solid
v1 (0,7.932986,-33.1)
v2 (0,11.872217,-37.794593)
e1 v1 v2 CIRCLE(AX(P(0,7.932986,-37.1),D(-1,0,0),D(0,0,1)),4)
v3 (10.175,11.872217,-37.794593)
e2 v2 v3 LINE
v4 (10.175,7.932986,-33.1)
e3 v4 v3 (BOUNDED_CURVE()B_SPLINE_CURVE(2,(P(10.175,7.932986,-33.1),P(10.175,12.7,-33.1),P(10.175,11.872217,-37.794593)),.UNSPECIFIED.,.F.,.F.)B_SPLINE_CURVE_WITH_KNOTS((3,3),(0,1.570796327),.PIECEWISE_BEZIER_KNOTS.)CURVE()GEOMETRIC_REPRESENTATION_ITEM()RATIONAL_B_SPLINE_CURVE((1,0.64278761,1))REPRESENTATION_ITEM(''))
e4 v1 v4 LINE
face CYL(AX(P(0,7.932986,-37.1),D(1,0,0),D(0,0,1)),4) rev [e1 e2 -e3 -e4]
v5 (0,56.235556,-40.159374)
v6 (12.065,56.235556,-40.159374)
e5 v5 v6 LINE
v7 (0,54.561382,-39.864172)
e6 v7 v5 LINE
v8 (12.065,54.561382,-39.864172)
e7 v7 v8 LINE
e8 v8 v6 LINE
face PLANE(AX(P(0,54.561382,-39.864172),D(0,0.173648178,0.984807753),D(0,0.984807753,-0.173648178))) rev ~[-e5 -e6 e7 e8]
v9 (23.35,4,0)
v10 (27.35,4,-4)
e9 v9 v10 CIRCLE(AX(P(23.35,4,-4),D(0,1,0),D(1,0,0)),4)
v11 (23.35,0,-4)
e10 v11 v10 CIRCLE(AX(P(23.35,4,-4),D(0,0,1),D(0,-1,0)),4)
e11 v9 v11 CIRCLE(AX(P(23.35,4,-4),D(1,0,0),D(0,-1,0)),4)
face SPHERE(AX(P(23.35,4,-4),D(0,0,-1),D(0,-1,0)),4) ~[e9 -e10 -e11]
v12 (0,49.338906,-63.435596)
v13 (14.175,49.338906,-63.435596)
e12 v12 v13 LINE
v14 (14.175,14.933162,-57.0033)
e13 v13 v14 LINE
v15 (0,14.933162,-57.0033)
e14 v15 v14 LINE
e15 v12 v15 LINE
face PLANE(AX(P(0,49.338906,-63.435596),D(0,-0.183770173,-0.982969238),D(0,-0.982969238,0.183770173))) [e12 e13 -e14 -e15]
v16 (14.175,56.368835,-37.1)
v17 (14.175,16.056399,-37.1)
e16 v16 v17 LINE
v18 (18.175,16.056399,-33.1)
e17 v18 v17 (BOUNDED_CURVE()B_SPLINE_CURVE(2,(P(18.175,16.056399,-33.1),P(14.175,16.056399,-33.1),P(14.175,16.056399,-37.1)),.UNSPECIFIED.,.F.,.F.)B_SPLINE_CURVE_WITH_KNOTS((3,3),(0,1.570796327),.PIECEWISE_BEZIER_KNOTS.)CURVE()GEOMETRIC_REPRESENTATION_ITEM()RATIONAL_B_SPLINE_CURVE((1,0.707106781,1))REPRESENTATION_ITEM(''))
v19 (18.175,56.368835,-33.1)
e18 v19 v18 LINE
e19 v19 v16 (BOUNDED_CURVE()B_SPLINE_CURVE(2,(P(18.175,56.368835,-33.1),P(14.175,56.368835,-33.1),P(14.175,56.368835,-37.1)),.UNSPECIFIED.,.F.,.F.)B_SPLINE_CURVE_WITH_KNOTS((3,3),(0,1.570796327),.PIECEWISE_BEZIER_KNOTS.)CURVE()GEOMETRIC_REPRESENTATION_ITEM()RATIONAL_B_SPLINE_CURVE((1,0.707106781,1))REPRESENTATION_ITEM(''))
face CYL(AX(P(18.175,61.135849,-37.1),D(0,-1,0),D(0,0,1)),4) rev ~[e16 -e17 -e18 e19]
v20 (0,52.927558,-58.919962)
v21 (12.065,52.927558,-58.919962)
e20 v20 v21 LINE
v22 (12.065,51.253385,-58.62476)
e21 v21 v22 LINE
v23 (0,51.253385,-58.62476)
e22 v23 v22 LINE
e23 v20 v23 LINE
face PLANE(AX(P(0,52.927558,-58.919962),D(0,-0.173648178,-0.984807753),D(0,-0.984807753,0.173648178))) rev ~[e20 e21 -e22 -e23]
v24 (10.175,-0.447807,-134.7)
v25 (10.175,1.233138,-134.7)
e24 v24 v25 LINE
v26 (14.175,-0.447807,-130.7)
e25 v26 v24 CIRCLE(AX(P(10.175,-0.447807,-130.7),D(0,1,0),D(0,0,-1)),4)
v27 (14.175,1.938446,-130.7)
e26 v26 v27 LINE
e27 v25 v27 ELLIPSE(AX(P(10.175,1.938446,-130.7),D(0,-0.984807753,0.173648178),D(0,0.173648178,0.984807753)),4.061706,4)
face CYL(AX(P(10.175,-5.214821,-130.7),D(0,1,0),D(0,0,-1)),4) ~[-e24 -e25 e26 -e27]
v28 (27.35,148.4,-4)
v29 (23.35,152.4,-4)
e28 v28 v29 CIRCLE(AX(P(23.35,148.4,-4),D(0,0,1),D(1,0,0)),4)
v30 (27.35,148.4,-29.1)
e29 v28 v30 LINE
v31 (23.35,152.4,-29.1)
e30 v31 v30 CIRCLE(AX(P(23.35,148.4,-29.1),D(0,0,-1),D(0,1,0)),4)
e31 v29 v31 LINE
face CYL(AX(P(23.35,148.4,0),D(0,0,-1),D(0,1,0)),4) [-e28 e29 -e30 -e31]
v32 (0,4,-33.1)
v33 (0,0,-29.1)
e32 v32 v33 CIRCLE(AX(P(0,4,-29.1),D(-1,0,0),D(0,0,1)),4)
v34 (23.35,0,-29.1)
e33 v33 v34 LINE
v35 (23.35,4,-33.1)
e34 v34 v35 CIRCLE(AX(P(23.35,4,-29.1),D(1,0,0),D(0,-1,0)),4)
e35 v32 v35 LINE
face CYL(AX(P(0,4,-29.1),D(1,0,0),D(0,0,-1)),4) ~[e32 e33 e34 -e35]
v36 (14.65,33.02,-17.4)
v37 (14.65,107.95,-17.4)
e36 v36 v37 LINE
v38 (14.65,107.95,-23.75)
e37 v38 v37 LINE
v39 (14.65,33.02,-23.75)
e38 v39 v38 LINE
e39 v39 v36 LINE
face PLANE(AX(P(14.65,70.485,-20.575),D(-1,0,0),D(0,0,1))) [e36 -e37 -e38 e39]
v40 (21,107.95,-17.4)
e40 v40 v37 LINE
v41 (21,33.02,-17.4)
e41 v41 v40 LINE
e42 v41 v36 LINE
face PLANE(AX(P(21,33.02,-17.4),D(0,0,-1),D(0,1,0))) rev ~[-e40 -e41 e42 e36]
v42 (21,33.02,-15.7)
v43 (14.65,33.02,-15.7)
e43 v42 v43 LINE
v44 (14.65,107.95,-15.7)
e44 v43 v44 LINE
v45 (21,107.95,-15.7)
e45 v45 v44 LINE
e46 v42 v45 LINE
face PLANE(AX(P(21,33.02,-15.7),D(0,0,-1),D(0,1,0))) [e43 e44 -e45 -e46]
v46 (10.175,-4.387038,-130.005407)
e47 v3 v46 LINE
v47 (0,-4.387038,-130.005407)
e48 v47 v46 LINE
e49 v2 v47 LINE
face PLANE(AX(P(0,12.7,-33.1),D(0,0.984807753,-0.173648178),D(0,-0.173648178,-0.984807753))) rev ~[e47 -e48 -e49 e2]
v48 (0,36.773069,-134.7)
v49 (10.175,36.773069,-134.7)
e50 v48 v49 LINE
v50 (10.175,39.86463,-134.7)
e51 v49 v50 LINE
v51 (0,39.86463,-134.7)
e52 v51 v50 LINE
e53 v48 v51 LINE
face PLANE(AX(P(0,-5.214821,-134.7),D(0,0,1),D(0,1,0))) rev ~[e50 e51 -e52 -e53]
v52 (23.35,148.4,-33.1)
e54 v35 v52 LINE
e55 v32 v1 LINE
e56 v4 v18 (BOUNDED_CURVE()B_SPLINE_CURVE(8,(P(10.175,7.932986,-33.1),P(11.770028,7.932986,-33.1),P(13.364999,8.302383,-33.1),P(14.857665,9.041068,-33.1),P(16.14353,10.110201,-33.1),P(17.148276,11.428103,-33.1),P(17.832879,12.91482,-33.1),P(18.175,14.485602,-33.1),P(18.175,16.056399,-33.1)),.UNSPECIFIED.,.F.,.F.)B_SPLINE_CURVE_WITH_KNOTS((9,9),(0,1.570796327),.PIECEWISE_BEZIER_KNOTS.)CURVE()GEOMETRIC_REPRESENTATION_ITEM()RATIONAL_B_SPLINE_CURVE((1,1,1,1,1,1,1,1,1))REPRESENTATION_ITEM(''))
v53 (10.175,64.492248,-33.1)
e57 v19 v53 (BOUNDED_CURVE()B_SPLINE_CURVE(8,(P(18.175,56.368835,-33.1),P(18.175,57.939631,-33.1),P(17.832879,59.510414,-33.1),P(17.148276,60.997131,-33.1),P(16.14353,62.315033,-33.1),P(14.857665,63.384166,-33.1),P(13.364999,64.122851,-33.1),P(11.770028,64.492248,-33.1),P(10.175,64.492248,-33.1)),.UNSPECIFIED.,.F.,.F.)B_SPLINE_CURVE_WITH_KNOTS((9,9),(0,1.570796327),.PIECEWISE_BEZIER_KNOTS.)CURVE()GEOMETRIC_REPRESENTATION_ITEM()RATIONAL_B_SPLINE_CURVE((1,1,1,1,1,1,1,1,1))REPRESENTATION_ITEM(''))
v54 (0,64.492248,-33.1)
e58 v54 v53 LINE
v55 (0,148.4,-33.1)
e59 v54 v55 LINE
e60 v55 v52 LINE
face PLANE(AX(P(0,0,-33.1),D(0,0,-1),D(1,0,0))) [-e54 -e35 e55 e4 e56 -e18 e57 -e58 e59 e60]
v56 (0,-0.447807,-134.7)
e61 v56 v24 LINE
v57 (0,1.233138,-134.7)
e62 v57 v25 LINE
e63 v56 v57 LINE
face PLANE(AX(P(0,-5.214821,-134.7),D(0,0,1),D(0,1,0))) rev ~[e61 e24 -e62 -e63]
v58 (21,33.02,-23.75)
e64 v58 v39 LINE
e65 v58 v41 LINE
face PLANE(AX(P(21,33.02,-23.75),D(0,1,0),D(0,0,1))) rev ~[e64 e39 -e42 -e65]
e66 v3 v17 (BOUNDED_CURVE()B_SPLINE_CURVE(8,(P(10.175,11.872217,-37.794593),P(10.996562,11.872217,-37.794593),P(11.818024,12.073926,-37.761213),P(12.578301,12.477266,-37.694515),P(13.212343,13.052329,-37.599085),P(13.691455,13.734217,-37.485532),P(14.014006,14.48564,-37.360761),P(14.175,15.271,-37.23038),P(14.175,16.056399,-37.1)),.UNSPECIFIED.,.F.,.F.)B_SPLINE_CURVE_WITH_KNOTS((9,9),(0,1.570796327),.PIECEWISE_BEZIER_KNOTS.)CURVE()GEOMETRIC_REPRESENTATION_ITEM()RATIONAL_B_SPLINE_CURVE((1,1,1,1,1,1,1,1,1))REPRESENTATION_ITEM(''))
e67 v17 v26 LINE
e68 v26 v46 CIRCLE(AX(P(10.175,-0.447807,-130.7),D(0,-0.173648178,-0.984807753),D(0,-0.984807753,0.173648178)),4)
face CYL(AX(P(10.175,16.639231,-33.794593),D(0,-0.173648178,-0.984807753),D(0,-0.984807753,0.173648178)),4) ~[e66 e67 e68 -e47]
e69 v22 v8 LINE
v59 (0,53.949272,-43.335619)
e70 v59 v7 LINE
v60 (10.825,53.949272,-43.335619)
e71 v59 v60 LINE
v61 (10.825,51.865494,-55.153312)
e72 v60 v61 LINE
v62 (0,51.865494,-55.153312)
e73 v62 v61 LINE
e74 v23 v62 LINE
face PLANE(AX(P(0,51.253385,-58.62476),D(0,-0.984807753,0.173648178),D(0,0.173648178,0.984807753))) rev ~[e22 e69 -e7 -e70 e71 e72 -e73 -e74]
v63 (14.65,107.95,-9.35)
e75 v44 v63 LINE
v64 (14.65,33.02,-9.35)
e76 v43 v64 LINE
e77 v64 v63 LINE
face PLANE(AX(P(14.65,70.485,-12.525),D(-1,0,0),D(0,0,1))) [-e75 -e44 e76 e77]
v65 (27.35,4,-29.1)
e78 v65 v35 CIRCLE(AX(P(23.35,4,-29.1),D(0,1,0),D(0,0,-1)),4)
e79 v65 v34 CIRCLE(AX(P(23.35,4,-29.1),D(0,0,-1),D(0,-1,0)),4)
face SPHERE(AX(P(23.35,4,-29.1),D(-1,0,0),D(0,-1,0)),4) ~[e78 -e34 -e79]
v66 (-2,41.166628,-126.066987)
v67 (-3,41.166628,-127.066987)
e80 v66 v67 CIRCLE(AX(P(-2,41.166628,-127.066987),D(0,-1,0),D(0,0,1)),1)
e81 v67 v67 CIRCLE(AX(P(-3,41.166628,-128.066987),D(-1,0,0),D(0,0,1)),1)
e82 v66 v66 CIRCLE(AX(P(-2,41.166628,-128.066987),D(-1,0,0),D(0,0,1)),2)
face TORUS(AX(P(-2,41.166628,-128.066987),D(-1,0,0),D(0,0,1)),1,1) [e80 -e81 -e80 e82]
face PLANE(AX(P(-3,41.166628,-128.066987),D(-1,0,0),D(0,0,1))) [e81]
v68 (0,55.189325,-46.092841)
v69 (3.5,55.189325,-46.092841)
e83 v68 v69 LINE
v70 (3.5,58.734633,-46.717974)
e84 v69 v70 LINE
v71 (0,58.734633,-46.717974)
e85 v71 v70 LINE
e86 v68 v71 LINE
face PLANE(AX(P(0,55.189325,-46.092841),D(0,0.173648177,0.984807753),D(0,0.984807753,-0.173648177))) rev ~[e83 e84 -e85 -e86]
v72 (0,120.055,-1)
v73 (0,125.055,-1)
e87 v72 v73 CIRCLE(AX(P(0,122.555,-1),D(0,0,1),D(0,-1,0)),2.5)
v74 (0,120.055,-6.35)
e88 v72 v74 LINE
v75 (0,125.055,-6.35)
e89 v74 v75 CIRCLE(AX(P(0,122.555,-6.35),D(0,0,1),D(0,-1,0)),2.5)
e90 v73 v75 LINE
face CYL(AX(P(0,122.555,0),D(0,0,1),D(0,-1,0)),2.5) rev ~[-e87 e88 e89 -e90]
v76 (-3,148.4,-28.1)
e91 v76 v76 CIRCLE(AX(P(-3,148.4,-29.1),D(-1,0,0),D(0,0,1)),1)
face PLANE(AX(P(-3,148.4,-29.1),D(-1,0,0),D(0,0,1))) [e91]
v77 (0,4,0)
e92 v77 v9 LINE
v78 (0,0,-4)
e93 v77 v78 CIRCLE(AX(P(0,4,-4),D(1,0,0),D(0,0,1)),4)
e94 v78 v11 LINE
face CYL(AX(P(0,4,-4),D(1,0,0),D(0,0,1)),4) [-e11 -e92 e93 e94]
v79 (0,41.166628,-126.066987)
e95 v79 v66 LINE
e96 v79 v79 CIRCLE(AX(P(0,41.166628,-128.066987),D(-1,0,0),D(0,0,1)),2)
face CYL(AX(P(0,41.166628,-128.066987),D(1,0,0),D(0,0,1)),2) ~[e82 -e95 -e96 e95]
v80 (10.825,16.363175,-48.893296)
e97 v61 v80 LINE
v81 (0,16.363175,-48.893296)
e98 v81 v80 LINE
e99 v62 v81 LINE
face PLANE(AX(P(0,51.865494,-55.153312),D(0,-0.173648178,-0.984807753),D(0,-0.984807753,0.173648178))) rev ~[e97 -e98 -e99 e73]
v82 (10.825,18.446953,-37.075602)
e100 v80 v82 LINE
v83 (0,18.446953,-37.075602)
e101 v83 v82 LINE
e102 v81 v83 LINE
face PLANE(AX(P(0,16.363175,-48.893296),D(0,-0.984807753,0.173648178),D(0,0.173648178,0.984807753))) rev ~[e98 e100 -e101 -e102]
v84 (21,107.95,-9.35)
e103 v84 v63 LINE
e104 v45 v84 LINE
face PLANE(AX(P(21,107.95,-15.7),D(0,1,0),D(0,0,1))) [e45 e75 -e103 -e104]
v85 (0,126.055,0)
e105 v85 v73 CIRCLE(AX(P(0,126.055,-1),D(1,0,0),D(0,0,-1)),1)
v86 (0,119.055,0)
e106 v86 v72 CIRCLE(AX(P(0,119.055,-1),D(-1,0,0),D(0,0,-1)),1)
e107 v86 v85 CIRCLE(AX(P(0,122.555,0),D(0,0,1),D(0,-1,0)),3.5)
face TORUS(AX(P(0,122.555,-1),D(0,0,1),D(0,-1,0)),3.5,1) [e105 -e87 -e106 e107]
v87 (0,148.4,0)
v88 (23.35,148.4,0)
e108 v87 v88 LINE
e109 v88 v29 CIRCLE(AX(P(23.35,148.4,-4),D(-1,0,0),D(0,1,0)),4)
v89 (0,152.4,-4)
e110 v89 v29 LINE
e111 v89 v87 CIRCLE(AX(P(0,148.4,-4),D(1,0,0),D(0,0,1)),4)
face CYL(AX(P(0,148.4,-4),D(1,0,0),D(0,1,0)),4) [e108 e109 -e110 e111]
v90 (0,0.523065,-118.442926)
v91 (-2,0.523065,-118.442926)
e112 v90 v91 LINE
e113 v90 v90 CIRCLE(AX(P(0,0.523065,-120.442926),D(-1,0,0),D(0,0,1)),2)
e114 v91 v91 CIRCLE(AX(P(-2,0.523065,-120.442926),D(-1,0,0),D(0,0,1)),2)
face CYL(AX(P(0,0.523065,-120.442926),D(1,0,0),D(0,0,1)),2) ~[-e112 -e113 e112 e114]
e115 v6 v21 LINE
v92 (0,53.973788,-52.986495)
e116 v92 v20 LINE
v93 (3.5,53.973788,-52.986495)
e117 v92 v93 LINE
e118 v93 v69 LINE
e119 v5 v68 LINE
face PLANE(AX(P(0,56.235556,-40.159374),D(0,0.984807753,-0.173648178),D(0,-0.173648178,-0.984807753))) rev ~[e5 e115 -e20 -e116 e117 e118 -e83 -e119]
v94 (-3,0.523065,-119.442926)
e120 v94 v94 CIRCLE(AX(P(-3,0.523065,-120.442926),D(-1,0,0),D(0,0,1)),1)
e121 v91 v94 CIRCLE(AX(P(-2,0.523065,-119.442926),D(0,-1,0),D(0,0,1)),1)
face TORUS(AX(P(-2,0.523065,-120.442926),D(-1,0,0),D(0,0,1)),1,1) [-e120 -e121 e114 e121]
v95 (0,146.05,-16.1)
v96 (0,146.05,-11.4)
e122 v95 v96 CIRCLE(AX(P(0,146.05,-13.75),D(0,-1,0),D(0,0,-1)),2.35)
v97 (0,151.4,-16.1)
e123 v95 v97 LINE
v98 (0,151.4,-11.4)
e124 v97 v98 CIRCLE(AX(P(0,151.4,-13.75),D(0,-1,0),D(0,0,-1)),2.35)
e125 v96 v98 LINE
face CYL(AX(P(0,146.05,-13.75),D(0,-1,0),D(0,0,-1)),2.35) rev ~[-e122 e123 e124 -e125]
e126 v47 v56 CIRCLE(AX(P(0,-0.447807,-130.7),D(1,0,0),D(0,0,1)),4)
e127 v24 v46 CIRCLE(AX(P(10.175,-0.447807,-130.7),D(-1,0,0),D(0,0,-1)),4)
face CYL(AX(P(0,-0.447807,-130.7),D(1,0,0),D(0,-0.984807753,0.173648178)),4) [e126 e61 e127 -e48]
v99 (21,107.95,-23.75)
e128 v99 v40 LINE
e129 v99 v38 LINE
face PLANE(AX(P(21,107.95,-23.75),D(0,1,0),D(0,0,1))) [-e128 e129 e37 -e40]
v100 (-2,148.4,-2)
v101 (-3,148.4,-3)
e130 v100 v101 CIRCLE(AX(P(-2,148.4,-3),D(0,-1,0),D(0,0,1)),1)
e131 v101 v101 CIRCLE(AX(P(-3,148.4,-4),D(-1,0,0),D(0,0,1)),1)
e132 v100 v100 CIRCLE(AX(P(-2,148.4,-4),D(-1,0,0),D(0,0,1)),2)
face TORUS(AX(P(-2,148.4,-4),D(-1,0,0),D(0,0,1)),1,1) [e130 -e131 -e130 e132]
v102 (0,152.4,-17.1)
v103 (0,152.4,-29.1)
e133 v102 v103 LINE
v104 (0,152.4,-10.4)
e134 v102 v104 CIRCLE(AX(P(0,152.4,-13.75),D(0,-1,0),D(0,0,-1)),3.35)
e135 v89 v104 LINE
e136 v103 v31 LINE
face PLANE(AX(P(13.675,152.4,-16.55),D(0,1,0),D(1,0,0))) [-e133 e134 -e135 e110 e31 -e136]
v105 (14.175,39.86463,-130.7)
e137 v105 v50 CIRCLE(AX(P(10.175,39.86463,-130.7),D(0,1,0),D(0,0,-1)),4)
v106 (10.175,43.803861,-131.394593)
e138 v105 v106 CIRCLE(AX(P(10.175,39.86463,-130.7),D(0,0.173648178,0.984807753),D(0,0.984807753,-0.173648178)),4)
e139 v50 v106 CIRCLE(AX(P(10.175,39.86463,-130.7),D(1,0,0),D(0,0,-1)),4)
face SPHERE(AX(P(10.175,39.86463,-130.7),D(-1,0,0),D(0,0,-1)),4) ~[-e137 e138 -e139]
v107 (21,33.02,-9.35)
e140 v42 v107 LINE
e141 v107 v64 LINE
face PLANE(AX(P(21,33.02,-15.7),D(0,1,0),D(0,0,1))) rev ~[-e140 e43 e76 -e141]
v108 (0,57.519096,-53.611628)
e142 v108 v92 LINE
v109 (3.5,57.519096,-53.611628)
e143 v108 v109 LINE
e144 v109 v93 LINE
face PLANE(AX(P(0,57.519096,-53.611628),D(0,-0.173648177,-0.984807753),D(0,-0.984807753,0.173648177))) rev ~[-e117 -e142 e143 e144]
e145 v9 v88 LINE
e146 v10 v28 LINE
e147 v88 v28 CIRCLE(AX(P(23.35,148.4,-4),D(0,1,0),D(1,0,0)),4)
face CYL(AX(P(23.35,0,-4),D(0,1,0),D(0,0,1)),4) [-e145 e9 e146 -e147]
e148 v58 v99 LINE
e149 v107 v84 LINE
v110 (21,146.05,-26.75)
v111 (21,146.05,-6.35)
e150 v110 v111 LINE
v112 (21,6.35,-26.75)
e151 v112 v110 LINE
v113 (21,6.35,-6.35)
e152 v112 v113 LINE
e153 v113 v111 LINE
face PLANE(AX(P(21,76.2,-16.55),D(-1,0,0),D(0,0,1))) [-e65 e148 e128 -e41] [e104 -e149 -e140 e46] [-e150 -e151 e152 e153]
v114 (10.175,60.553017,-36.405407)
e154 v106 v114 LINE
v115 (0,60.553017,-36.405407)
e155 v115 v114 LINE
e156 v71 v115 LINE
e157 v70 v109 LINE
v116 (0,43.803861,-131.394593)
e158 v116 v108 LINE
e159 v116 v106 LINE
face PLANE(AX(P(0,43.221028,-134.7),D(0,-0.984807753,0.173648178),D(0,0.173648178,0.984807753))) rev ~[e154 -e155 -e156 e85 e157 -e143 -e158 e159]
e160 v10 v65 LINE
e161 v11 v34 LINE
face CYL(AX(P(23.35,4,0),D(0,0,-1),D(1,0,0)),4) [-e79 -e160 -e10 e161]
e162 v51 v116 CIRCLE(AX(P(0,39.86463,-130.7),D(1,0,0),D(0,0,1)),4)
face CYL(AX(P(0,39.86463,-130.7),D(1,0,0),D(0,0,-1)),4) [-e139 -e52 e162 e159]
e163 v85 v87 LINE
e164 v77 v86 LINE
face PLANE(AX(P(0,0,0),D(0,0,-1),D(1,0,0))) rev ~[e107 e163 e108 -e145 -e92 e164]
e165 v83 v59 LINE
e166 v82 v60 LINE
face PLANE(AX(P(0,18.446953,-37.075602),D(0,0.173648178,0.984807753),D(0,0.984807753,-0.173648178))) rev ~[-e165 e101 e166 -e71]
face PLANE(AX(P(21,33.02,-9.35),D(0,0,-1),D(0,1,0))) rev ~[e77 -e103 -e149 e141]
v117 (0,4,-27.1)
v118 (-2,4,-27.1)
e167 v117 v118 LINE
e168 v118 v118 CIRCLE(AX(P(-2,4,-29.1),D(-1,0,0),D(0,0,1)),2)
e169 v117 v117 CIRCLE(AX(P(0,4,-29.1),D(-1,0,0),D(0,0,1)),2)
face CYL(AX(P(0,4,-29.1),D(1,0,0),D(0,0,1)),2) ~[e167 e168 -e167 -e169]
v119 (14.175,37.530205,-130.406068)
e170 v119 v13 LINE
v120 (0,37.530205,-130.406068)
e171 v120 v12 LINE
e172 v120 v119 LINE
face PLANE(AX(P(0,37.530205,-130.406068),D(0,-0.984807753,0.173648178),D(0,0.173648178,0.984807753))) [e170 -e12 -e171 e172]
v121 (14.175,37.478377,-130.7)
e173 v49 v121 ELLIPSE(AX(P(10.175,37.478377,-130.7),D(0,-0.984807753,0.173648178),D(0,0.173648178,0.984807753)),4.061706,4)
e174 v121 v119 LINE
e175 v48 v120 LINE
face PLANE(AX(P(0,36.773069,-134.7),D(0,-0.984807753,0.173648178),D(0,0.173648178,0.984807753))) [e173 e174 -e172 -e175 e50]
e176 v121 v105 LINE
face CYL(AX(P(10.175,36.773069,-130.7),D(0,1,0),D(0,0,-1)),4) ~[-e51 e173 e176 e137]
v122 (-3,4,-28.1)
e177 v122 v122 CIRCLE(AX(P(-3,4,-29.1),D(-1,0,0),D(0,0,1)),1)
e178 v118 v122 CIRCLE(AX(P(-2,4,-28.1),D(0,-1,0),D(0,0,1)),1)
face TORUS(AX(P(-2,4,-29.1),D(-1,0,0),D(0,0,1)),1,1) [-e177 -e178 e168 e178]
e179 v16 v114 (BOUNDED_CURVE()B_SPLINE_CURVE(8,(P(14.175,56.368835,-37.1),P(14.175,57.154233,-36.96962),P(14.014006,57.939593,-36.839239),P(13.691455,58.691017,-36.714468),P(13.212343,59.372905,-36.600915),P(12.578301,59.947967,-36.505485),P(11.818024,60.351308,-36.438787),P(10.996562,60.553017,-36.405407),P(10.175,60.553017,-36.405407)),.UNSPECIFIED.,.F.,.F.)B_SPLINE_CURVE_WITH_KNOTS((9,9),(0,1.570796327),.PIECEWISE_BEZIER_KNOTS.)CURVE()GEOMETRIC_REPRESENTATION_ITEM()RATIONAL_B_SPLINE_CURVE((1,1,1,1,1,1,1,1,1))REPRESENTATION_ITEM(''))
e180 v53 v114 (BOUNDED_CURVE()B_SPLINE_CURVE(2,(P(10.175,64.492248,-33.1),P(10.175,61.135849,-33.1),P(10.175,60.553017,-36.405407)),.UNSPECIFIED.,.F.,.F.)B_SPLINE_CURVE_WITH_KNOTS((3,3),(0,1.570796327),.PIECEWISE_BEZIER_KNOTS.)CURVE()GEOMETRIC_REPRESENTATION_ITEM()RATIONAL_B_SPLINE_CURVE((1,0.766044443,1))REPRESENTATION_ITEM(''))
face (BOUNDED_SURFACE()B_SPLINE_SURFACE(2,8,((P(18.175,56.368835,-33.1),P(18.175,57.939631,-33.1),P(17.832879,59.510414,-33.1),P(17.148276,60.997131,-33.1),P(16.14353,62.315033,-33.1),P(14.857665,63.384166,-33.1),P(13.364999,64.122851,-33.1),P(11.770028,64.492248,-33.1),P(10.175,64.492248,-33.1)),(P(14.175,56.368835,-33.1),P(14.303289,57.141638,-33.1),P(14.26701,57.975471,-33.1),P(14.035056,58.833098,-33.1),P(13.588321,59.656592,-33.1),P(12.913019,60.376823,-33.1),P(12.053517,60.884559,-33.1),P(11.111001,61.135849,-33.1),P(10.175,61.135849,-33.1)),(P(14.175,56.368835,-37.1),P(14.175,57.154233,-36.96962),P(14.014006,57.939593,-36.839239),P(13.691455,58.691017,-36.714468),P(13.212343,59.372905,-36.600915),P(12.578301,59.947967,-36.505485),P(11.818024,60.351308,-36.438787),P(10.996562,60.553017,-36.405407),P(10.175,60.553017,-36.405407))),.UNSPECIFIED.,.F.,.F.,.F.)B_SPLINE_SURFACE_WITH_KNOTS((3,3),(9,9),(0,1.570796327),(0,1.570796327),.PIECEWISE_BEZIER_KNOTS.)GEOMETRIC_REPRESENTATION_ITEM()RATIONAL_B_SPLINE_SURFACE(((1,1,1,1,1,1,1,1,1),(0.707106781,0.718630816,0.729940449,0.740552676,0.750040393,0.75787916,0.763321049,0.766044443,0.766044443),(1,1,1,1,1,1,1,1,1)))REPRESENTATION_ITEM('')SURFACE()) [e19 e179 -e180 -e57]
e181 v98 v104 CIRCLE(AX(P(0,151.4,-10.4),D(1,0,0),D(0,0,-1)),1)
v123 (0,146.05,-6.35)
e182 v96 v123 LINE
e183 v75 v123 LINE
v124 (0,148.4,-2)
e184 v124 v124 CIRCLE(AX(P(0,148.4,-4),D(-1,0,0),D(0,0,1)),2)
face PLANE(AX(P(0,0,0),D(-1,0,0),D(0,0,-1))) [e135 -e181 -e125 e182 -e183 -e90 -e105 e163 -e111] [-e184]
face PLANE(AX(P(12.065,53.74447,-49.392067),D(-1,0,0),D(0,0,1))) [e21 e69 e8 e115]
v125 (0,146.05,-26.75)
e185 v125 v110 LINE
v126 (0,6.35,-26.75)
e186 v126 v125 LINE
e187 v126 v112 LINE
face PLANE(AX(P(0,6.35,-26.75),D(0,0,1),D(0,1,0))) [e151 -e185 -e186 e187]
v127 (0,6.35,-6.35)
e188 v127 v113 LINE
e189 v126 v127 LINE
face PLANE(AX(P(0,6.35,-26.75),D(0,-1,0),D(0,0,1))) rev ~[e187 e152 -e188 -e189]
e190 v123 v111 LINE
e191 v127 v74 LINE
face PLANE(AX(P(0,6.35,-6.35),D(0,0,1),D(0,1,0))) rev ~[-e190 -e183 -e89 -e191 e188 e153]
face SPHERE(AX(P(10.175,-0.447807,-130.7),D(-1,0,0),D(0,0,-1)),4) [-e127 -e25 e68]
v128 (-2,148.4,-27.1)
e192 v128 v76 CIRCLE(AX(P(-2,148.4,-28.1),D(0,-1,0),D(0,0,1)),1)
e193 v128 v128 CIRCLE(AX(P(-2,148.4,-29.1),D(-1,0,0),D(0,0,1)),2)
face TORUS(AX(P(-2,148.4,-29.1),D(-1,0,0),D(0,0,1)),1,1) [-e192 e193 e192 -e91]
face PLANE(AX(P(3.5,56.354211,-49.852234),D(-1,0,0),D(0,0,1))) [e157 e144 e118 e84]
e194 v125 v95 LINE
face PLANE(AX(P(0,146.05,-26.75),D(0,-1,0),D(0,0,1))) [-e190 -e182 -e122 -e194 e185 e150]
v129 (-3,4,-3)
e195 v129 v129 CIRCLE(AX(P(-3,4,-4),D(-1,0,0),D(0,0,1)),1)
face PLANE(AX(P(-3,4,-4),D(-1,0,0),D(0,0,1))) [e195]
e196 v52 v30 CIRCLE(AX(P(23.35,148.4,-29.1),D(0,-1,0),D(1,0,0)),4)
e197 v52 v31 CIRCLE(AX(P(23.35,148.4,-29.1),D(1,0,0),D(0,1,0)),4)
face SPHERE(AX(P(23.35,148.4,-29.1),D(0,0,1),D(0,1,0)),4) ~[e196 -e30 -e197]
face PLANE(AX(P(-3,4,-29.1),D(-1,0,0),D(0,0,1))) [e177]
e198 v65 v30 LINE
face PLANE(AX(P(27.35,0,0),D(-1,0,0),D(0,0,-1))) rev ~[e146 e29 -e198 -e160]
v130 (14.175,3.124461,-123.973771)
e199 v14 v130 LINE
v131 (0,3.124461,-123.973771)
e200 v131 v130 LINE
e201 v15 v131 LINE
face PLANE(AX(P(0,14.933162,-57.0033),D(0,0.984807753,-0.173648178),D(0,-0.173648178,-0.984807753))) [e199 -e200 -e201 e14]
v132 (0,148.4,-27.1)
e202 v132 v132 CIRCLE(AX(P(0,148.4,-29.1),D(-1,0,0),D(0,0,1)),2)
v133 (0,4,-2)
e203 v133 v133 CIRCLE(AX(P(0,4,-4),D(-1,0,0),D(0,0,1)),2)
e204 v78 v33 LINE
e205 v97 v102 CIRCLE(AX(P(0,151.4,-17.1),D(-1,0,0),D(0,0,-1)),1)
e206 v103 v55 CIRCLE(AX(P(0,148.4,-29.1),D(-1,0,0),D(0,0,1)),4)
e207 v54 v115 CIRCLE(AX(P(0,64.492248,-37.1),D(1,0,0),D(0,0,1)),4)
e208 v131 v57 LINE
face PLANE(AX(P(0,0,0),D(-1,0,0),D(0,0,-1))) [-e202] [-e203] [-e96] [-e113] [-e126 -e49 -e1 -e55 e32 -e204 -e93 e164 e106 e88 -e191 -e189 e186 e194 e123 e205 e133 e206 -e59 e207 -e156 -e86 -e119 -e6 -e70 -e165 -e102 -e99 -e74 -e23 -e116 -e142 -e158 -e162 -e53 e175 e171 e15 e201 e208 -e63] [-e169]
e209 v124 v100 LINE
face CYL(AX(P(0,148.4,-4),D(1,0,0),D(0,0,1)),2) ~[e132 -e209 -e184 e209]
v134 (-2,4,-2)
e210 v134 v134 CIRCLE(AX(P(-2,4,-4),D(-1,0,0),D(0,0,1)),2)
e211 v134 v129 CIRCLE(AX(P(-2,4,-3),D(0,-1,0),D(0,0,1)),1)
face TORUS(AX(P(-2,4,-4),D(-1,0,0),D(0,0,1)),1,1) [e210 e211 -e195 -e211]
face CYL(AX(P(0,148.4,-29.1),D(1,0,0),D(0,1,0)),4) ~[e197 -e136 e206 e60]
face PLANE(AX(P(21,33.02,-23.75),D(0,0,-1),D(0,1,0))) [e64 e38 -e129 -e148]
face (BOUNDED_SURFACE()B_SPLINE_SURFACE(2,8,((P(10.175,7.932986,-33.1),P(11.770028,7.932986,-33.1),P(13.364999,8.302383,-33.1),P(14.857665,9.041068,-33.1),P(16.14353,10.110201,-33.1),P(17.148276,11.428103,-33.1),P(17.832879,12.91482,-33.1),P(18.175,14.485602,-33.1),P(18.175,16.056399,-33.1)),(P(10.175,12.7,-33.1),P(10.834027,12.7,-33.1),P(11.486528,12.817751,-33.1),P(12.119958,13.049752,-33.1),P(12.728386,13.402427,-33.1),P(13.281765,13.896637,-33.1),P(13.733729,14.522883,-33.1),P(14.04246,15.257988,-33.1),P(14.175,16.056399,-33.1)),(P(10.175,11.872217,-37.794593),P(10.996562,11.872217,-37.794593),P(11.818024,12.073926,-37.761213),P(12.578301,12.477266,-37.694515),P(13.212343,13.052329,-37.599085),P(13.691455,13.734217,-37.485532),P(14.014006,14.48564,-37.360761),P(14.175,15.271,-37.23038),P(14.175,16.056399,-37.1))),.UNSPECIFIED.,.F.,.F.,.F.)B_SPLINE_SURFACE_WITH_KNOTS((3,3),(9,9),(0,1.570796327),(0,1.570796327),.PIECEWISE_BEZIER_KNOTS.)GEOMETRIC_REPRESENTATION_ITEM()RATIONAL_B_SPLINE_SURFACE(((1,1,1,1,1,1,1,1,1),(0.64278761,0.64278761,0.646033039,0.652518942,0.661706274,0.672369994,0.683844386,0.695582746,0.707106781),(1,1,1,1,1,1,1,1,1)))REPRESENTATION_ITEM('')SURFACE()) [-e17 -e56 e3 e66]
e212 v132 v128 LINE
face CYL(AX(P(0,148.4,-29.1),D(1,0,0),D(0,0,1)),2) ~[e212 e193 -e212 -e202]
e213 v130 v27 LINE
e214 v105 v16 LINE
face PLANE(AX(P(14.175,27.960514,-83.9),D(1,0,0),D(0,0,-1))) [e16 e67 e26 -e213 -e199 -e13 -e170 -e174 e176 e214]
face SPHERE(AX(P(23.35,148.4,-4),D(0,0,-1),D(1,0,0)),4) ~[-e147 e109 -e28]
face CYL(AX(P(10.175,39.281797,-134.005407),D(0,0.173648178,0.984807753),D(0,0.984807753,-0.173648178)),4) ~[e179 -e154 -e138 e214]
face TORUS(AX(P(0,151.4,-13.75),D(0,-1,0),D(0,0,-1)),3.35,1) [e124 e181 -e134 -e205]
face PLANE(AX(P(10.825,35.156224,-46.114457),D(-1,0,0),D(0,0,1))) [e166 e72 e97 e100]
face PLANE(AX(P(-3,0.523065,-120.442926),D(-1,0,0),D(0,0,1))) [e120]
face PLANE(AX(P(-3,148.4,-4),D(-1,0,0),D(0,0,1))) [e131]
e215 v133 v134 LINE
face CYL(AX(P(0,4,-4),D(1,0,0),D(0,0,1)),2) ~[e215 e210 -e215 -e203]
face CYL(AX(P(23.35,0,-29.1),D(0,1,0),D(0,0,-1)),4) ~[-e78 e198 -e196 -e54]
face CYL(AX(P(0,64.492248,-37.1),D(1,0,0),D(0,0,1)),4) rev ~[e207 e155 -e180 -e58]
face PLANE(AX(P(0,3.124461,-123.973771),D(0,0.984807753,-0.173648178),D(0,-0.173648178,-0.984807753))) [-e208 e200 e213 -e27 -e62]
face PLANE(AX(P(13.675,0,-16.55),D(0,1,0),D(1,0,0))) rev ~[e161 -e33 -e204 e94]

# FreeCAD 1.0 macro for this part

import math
import FreeCAD as App
import Part
import Sketcher

V = App.Vector
Q = App.Units.Quantity


def edges_at(feature, points):
    """Names of the edges that pass closest to the given points."""
    edges = feature.Shape.Edges
    near = lambda p: min(range(len(edges)), key=lambda i: edges[i].distToShape(Part.Vertex(*p))[0])
    return sorted({f"Edge{near(p) + 1}" for p in points})

doc = App.newDocument("Part")
params = doc.addObject("Spreadsheet::Sheet", "Params")
for row, (alias, value) in enumerate([
    ("sketch1_height", "33.1 mm"),
    ("sketch1_width", "27.35 mm"),
    ("pad1_length", "152.4 mm"),
    ("sketch2_width", "139.7 mm"),
    ("sketch2_height", "20.4 mm"),
    ("pocket1_length", "21 mm"),
    ("sketch3_radius", "2.5 mm"),
    ("sketch4_width", "74.93 mm"),
    ("sketch4_height", "6.35 mm"),
    ("pad2_length", "6.35 mm"),
    ("sketch5_diameter", "4 mm"),
    ("pad3_length", "3 mm"),
    ("fillet_radius", "1 mm"),
    ("pad4_length", "14.175 mm"),
    ("pocket3_length", "14.175 mm"),
    ("sketch8_diameter", "4 mm"),
    ("pad5_length", "3 mm"),
    ("sketch9_radius", "2.35 mm"),
    ("fillet2_radius", "4 mm"),
    ("fillet3_radius", "1 mm"),
    ("fillet4_radius", "1 mm"),
    ("sketch10_length", "7 mm"),
    ("sketch10_length2", "3.6 mm"),
    ("pocket5_length", "3.5 mm"),
    ("sketch11_length", "1.7 mm"),
    ("sketch11_length2", "19.05 mm"),
    ("pocket6_length", "12.065 mm"),
    ("sketch12_length", "12 mm"),
    ("sketch12_length2", "36.05 mm"),
    ("pocket7_length", "10.825 mm"),
], start=1):
    params.set(f"A{row}", alias)
    params.set(f"B{row}", "=" + value)
    params.setAlias(f"B{row}", alias)

body = doc.addObject("PartDesign::Body", "Body")

# Sketch on XZ plane
sketch1 = doc.addObject("Sketcher::SketchObject", "Sketch")
body.addObject(sketch1)
sketch1.AttachmentSupport = (doc.XZ_Plane, [""])
sketch1.MapMode = "FlatFace"
sketch1.addGeometry(Part.LineSegment(V(0, -33, 0), V(0, 0, 0)), False)
sketch1.addGeometry(Part.LineSegment(V(0, 0, 0), V(27, 0, 0)), False)
sketch1.addGeometry(Part.LineSegment(V(27, 0, 0), V(27, -33, 0)), False)
sketch1.addGeometry(Part.LineSegment(V(27, -33, 0), V(0, -33, 0)), False)
sketch1.addConstraint(Sketcher.Constraint("Coincident", 0, 2, 1, 1))
sketch1.addConstraint(Sketcher.Constraint("Coincident", 1, 2, 2, 1))
sketch1.addConstraint(Sketcher.Constraint("Coincident", 2, 2, 3, 1))
sketch1.addConstraint(Sketcher.Constraint("Coincident", 3, 2, 0, 1))
sketch1.addConstraint(Sketcher.Constraint("Vertical", 0))
sketch1.addConstraint(Sketcher.Constraint("Horizontal", 1))
sketch1.addConstraint(Sketcher.Constraint("Vertical", 2))
sketch1.addConstraint(Sketcher.Constraint("Horizontal", 3))
sketch1.addConstraint(Sketcher.Constraint("Coincident", 0, 2, -1, 1))
sketch1.addConstraint(Sketcher.Constraint("DistanceY", 0, 1, 0, 2, Q("33.1 mm")))
sketch1.addConstraint(Sketcher.Constraint("DistanceX", 1, 1, 1, 2, Q("27.35 mm")))
sketch1.setExpression("Constraints[9]", "Params.sketch1_height")
sketch1.setExpression("Constraints[10]", "Params.sketch1_width")
pad1 = doc.addObject("PartDesign::Pad", "Pad")
body.addObject(pad1)
pad1.Profile = sketch1
pad1.setExpression("Length", "Params.pad1_length")
pad1.Reversed = True

# Sketch on YZ plane
sketch2 = doc.addObject("Sketcher::SketchObject", "Sketch001")
body.addObject(sketch2)
sketch2.AttachmentSupport = (doc.YZ_Plane, [""])
sketch2.MapMode = "FlatFace"
sketch2.addGeometry(Part.LineSegment(V(146, -27, 0), V(6, -27, 0)), False)
sketch2.addGeometry(Part.LineSegment(V(6, -27, 0), V(6, -6, 0)), False)
sketch2.addGeometry(Part.LineSegment(V(6, -6, 0), V(146, -6, 0)), False)
sketch2.addGeometry(Part.LineSegment(V(146, -6, 0), V(146, -27, 0)), False)
sketch2.addConstraint(Sketcher.Constraint("Coincident", 0, 2, 1, 1))
sketch2.addConstraint(Sketcher.Constraint("Coincident", 1, 2, 2, 1))
sketch2.addConstraint(Sketcher.Constraint("Coincident", 2, 2, 3, 1))
sketch2.addConstraint(Sketcher.Constraint("Coincident", 3, 2, 0, 1))
sketch2.addConstraint(Sketcher.Constraint("Horizontal", 0))
sketch2.addConstraint(Sketcher.Constraint("Vertical", 1))
sketch2.addConstraint(Sketcher.Constraint("Horizontal", 2))
sketch2.addConstraint(Sketcher.Constraint("Vertical", 3))
sketch2.addConstraint(Sketcher.Constraint("DistanceX", 0, 2, 0, 1, Q("139.7 mm")))
sketch2.addConstraint(Sketcher.Constraint("DistanceY", 1, 1, 1, 2, Q("20.4 mm")))
sketch2.addConstraint(Sketcher.Constraint("DistanceX", -1, 1, 0, 2, Q("6.35 mm")))
sketch2.addConstraint(Sketcher.Constraint("DistanceY", 0, 2, -1, 1, Q("26.75 mm")))
sketch2.setExpression("Constraints[8]", "Params.sketch2_width")
sketch2.setExpression("Constraints[9]", "Params.sketch2_height")
pocket1 = doc.addObject("PartDesign::Pocket", "Pocket")
body.addObject(pocket1)
pocket1.Profile = sketch2
pocket1.setExpression("Length", "Params.pocket1_length")
pocket1.Reversed = True

# Sketch on XY plane
sketch3 = doc.addObject("Sketcher::SketchObject", "Sketch002")
body.addObject(sketch3)
sketch3.AttachmentSupport = (doc.XY_Plane, [""])
sketch3.MapMode = "FlatFace"
sketch3.addGeometry(Part.LineSegment(V(0, 125.1, 0), V(0, 120.1, 0)), False)
sketch3.addGeometry(Part.ArcOfCircle(Part.Circle(V(0, 122.6, 0), V(0, 0, 1), 2.5), math.radians(-90), math.radians(90)), False)
sketch3.addConstraint(Sketcher.Constraint("Coincident", 0, 1, 1, 2))
sketch3.addConstraint(Sketcher.Constraint("Coincident", 1, 1, 0, 2))
sketch3.addConstraint(Sketcher.Constraint("Vertical", 0))
sketch3.addConstraint(Sketcher.Constraint("PointOnObject", 1, 3, -2))
sketch3.addConstraint(Sketcher.Constraint("PointOnObject", 0, 1, -2))
sketch3.addConstraint(Sketcher.Constraint("Radius", 1, Q("2.5 mm")))
sketch3.addConstraint(Sketcher.Constraint("DistanceY", -1, 1, 1, 3, Q("122.555 mm")))
sketch3.setExpression("Constraints[5]", "Params.sketch3_radius")
pocket2 = doc.addObject("PartDesign::Pocket", "Pocket001")
body.addObject(pocket2)
pocket2.Profile = sketch3
pocket2.Type = "UpToFirst"

# Sketch on YZ plane
sketch4 = doc.addObject("Sketcher::SketchObject", "Sketch003")
body.addObject(sketch4)
sketch4.AttachmentSupport = (doc.YZ_Plane, [""])
sketch4.MapMode = "FlatFace"
sketch4.AttachmentOffset = App.Placement(V(0, 0, 21), App.Rotation())
sketch4.addGeometry(Part.LineSegment(V(108, -16, 0), V(33, -16, 0)), False)
sketch4.addGeometry(Part.LineSegment(V(33, -16, 0), V(33, -9, 0)), False)
sketch4.addGeometry(Part.LineSegment(V(33, -9, 0), V(108, -9, 0)), False)
sketch4.addGeometry(Part.LineSegment(V(108, -9, 0), V(108, -16, 0)), False)
sketch4.addGeometry(Part.LineSegment(V(108, -24, 0), V(33, -24, 0)), False)
sketch4.addGeometry(Part.LineSegment(V(33, -24, 0), V(33, -17, 0)), False)
sketch4.addGeometry(Part.LineSegment(V(33, -17, 0), V(108, -17, 0)), False)
sketch4.addGeometry(Part.LineSegment(V(108, -17, 0), V(108, -24, 0)), False)
sketch4.addConstraint(Sketcher.Constraint("Coincident", 0, 2, 1, 1))
sketch4.addConstraint(Sketcher.Constraint("Coincident", 1, 2, 2, 1))
sketch4.addConstraint(Sketcher.Constraint("Coincident", 2, 2, 3, 1))
sketch4.addConstraint(Sketcher.Constraint("Coincident", 3, 2, 0, 1))
sketch4.addConstraint(Sketcher.Constraint("Coincident", 4, 2, 5, 1))
sketch4.addConstraint(Sketcher.Constraint("Coincident", 5, 2, 6, 1))
sketch4.addConstraint(Sketcher.Constraint("Coincident", 6, 2, 7, 1))
sketch4.addConstraint(Sketcher.Constraint("Coincident", 7, 2, 4, 1))
sketch4.addConstraint(Sketcher.Constraint("Horizontal", 0))
sketch4.addConstraint(Sketcher.Constraint("Vertical", 1))
sketch4.addConstraint(Sketcher.Constraint("Horizontal", 2))
sketch4.addConstraint(Sketcher.Constraint("Vertical", 3))
sketch4.addConstraint(Sketcher.Constraint("Horizontal", 4))
sketch4.addConstraint(Sketcher.Constraint("Vertical", 5))
sketch4.addConstraint(Sketcher.Constraint("Horizontal", 6))
sketch4.addConstraint(Sketcher.Constraint("Vertical", 7))
sketch4.addConstraint(Sketcher.Constraint("Vertical", 1, 2, 4, 2))
sketch4.addConstraint(Sketcher.Constraint("Vertical", 3, 2, 6, 2))
sketch4.addConstraint(Sketcher.Constraint("Equal", 3, 5))
sketch4.addConstraint(Sketcher.Constraint("DistanceX", 0, 2, 0, 1, Q("74.93 mm")))
sketch4.addConstraint(Sketcher.Constraint("DistanceY", 1, 1, 1, 2, Q("6.35 mm")))
sketch4.addConstraint(Sketcher.Constraint("DistanceY", 0, 2, -1, 1, Q("15.7 mm")))
sketch4.addConstraint(Sketcher.Constraint("DistanceY", 5, 2, -1, 1, Q("17.4 mm")))
sketch4.addConstraint(Sketcher.Constraint("DistanceX", -1, 1, 0, 2, Q("33.02 mm")))
sketch4.setExpression("Constraints[19]", "Params.sketch4_width")
sketch4.setExpression("Constraints[20]", "Params.sketch4_height")
pad2 = doc.addObject("PartDesign::Pad", "Pad001")
body.addObject(pad2)
pad2.Profile = sketch4
pad2.setExpression("Length", "Params.pad2_length")
pad2.Reversed = True

# Sketch on YZ plane
sketch5 = doc.addObject("Sketcher::SketchObject", "Sketch004")
body.addObject(sketch5)
sketch5.AttachmentSupport = (doc.YZ_Plane, [""])
sketch5.MapMode = "FlatFace"
sketch5.addGeometry(Part.Circle(V(148.4, -4, 0), V(0, 0, 1), 2), False)
sketch5.addGeometry(Part.Circle(V(4, -4, 0), V(0, 0, 1), 2), False)
sketch5.addGeometry(Part.Circle(V(148.4, -29.1, 0), V(0, 0, 1), 2), False)
sketch5.addGeometry(Part.Circle(V(4, -29.1, 0), V(0, 0, 1), 2), False)
sketch5.addConstraint(Sketcher.Constraint("Equal", 0, 1))
sketch5.addConstraint(Sketcher.Constraint("Equal", 1, 2))
sketch5.addConstraint(Sketcher.Constraint("Equal", 2, 3))
sketch5.addConstraint(Sketcher.Constraint("Horizontal", 0, 3, 1, 3))
sketch5.addConstraint(Sketcher.Constraint("Horizontal", 2, 3, 3, 3))
sketch5.addConstraint(Sketcher.Constraint("Vertical", 0, 3, 2, 3))
sketch5.addConstraint(Sketcher.Constraint("Vertical", 1, 3, 3, 3))
sketch5.addConstraint(Sketcher.Constraint("Diameter", 0, Q("4 mm")))
sketch5.addConstraint(Sketcher.Constraint("DistanceY", 0, 3, -1, 1, Q("4 mm")))
sketch5.addConstraint(Sketcher.Constraint("DistanceX", -1, 1, 1, 3, Q("4 mm")))
sketch5.addConstraint(Sketcher.Constraint("DistanceX", -1, 1, 0, 3, Q("148.4 mm")))
sketch5.addConstraint(Sketcher.Constraint("DistanceY", 2, 3, -1, 1, Q("29.1 mm")))
sketch5.setExpression("Constraints[7]", "Params.sketch5_diameter")
pad3 = doc.addObject("PartDesign::Pad", "Pad002")
body.addObject(pad3)
pad3.Profile = sketch5
pad3.setExpression("Length", "Params.pad3_length")
pad3.Reversed = True
doc.recompute()

fillet = doc.addObject("PartDesign::Fillet", "Fillet")
body.addObject(fillet)
fillet.Base = (pad3, edges_at(pad3, [
    (-3, 148.4, -6),
    (-3, 4, -6),
    (-3, 148.4, -31.1),
    (-3, 4, -31.1),
]))
fillet.setExpression("Radius", "Params.fillet_radius")

# Sketch on YZ plane
sketch6 = doc.addObject("Sketcher::SketchObject", "Sketch005")
body.addObject(sketch6)
sketch6.AttachmentSupport = (doc.YZ_Plane, [""])
sketch6.MapMode = "FlatFace"
sketch6.addGeometry(Part.LineSegment(V(13, -33, 0), V(61, -33, 0)), False)
sketch6.addGeometry(Part.LineSegment(V(61, -33, 0), V(43, -135, 0)), False)
sketch6.addGeometry(Part.LineSegment(V(43, -135, 0), V(-5, -135, 0)), False)
sketch6.addGeometry(Part.LineSegment(V(-5, -135, 0), V(13, -33, 0)), False)
sketch6.addConstraint(Sketcher.Constraint("Coincident", 0, 2, 1, 1))
sketch6.addConstraint(Sketcher.Constraint("Coincident", 1, 2, 2, 1))
sketch6.addConstraint(Sketcher.Constraint("Coincident", 2, 2, 3, 1))
sketch6.addConstraint(Sketcher.Constraint("Coincident", 3, 2, 0, 1))
sketch6.addConstraint(Sketcher.Constraint("Horizontal", 0))
sketch6.addConstraint(Sketcher.Constraint("Horizontal", 2))
sketch6.addConstraint(Sketcher.Constraint("Parallel", 1, 3))
sketch6.addConstraint(Sketcher.Constraint("Angle", 1, Q("-100 deg")))
sketch6.addConstraint(Sketcher.Constraint("DistanceY", 0, 2, -1, 1, Q("33.1 mm")))
sketch6.addConstraint(Sketcher.Constraint("DistanceY", 1, 2, -1, 1, Q("134.7 mm")))
sketch6.addConstraint(Sketcher.Constraint("DistanceX", -1, 1, 3, 2, Q("12.7 mm")))
sketch6.addConstraint(Sketcher.Constraint("DistanceX", 0, 1, 0, 2, Q("48.435849 mm")))
pad4 = doc.addObject("PartDesign::Pad", "Pad003")
body.addObject(pad4)
pad4.Profile = sketch6
pad4.setExpression("Length", "Params.pad4_length")

# Sketch on YZ plane
sketch7 = doc.addObject("Sketcher::SketchObject", "Sketch006")
body.addObject(sketch7)
sketch7.AttachmentSupport = (doc.YZ_Plane, [""])
sketch7.MapMode = "FlatFace"
sketch7.addGeometry(Part.LineSegment(V(14.9, -57, 0), V(49.3, -63.4, 0)), False)
sketch7.addGeometry(Part.LineSegment(V(49.3, -63.4, 0), V(37.5, -130.4, 0)), False)
sketch7.addGeometry(Part.LineSegment(V(37.5, -130.4, 0), V(36.8, -134.7, 0)), False)
sketch7.addGeometry(Part.LineSegment(V(36.8, -134.7, 0), V(1.2, -134.7, 0)), False)
sketch7.addGeometry(Part.LineSegment(V(1.2, -134.7, 0), V(3.1, -124, 0)), False)
sketch7.addGeometry(Part.LineSegment(V(3.1, -124, 0), V(14.9, -57, 0)), False)
sketch7.addConstraint(Sketcher.Constraint("Coincident", 0, 2, 1, 1))
sketch7.addConstraint(Sketcher.Constraint("Coincident", 1, 2, 2, 1))
sketch7.addConstraint(Sketcher.Constraint("Coincident", 2, 2, 3, 1))
sketch7.addConstraint(Sketcher.Constraint("Coincident", 3, 2, 4, 1))
sketch7.addConstraint(Sketcher.Constraint("Coincident", 4, 2, 5, 1))
sketch7.addConstraint(Sketcher.Constraint("Coincident", 5, 2, 0, 1))
sketch7.addConstraint(Sketcher.Constraint("Horizontal", 3))
sketch7.addConstraint(Sketcher.Constraint("Parallel", 1, 2))
sketch7.addConstraint(Sketcher.Constraint("Parallel", 2, 4))
sketch7.addConstraint(Sketcher.Constraint("Parallel", 4, 5))
sketch7.addConstraint(Sketcher.Constraint("Equal", 1, 5))
sketch7.addConstraint(Sketcher.Constraint("Angle", 1, Q("-100 deg")))
sketch7.addConstraint(Sketcher.Constraint("DistanceY", 2, 2, -1, 1, Q("134.7 mm")))
sketch7.addConstraint(Sketcher.Constraint("Distance", 1, Q("68.003599 mm")))
sketch7.addConstraint(Sketcher.Constraint("Distance", 4, Q("10.891698 mm")))
sketch7.addConstraint(Sketcher.Constraint("DistanceX", 3, 2, 3, 1, Q("35.539931 mm")))
sketch7.addConstraint(Sketcher.Constraint("DistanceX", -1, 1, 2, 2, Q("36.773069 mm")))
sketch7.addConstraint(Sketcher.Constraint("DistanceX", 3, 2, 0, 2, Q("48.105769 mm")))
pocket3 = doc.addObject("PartDesign::Pocket", "Pocket002")
body.addObject(pocket3)
pocket3.Profile = sketch7
pocket3.setExpression("Length", "Params.pocket3_length")
pocket3.Reversed = True

# Sketch on YZ plane
sketch8 = doc.addObject("Sketcher::SketchObject", "Sketch007")
body.addObject(sketch8)
sketch8.AttachmentSupport = (doc.YZ_Plane, [""])
sketch8.MapMode = "FlatFace"
sketch8.addGeometry(Part.Circle(V(41.2, -128.1, 0), V(0, 0, 1), 2), False)
sketch8.addGeometry(Part.Circle(V(0.5, -120.4, 0), V(0, 0, 1), 2), False)
sketch8.addConstraint(Sketcher.Constraint("Equal", 0, 1))
sketch8.addConstraint(Sketcher.Constraint("Diameter", 0, Q("4 mm")))
sketch8.addConstraint(Sketcher.Constraint("DistanceY", 0, 3, 1, 3, Q("7.624061 mm")))
sketch8.addConstraint(Sketcher.Constraint("DistanceX", -1, 1, 0, 3, Q("41.166628 mm")))
sketch8.addConstraint(Sketcher.Constraint("DistanceY", 0, 3, -1, 1, Q("128.066987 mm")))
sketch8.addConstraint(Sketcher.Constraint("DistanceX", -1, 1, 1, 3, Q("0.523065 mm")))
sketch8.setExpression("Constraints[1]", "Params.sketch8_diameter")
pad5 = doc.addObject("PartDesign::Pad", "Pad004")
body.addObject(pad5)
pad5.Profile = sketch8
pad5.setExpression("Length", "Params.pad5_length")
pad5.Reversed = True

# Sketch on XZ plane
sketch9 = doc.addObject("Sketcher::SketchObject", "Sketch008")
body.addObject(sketch9)
sketch9.AttachmentSupport = (doc.XZ_Plane, [""])
sketch9.MapMode = "FlatFace"
sketch9.AttachmentOffset = App.Placement(V(0, 0, -146.05), App.Rotation())
sketch9.addGeometry(Part.LineSegment(V(0, -11.4, 0), V(0, -16.1, 0)), False)
sketch9.addGeometry(Part.ArcOfCircle(Part.Circle(V(0, -13.8, 0), V(0, 0, 1), 2.4), math.radians(-90), math.radians(90)), False)
sketch9.addConstraint(Sketcher.Constraint("Coincident", 0, 1, 1, 2))
sketch9.addConstraint(Sketcher.Constraint("Coincident", 1, 1, 0, 2))
sketch9.addConstraint(Sketcher.Constraint("Vertical", 0))
sketch9.addConstraint(Sketcher.Constraint("PointOnObject", 1, 3, -2))
sketch9.addConstraint(Sketcher.Constraint("PointOnObject", 0, 1, -2))
sketch9.addConstraint(Sketcher.Constraint("Radius", 1, Q("2.35 mm")))
sketch9.addConstraint(Sketcher.Constraint("DistanceY", 0, 1, -1, 1, Q("11.4 mm")))
sketch9.setExpression("Constraints[5]", "Params.sketch9_radius")
pocket4 = doc.addObject("PartDesign::Pocket", "Pocket003")
body.addObject(pocket4)
pocket4.Profile = sketch9
pocket4.Type = "UpToFirst"
doc.recompute()

fillet2 = doc.addObject("PartDesign::Fillet", "Fillet001")
body.addObject(fillet2)
fillet2.Base = (pocket4, edges_at(pocket4, [
    (14.175, -1.991, -134.7),
    (27.35, 152.4, -16.55),
    (13.675, 152.4, -33.1),
    (13.675, 0, -33.1),
    (27.35, 0, -16.55),
    (13.675, 0, 0),
    (27.35, 76.2, -33.1),
    (27.35, 76.2, 0),
    (13.675, 152.4, 0),
    (14.175, 52.178, -83.9),
    (7.088, 43.221, -134.7),
    (14.175, 36.918, -33.1),
    (7.088, 61.136, -33.1),
    (14.175, 3.743, -83.9),
    (7.088, 12.7, -33.1),
    (14.175, 39.997, -134.7),
    (7.088, -5.215, -134.7),
]))
fillet2.setExpression("Radius", "Params.fillet2_radius")
doc.recompute()

fillet3 = doc.addObject("PartDesign::Fillet", "Fillet002")
body.addObject(fillet3)
fillet3.Base = (fillet2, edges_at(fillet2, [(-3, 41.167, -130.067), (-3, 0.523, -122.443)]))
fillet3.setExpression("Radius", "Params.fillet3_radius")
doc.recompute()

fillet4 = doc.addObject("PartDesign::Fillet", "Fillet003")
body.addObject(fillet4)
fillet4.Base = (fillet3, edges_at(fillet3, [(2.35, 152.4, -13.75), (2.5, 122.555, 0)]))
fillet4.setExpression("Radius", "Params.fillet4_radius")

# Sketch on YZ plane
sketch10 = doc.addObject("Sketcher::SketchObject", "Sketch009")
body.addObject(sketch10)
sketch10.AttachmentSupport = (doc.YZ_Plane, [""])
sketch10.MapMode = "FlatFace"
sketch10.addGeometry(Part.LineSegment(V(58.7, -46.7, 0), V(57.5, -53.6, 0)), False)
sketch10.addGeometry(Part.LineSegment(V(57.5, -53.6, 0), V(54, -53, 0)), False)
sketch10.addGeometry(Part.LineSegment(V(54, -53, 0), V(55.2, -46.1, 0)), False)
sketch10.addGeometry(Part.LineSegment(V(55.2, -46.1, 0), V(58.7, -46.7, 0)), False)
sketch10.addConstraint(Sketcher.Constraint("Coincident", 0, 2, 1, 1))
sketch10.addConstraint(Sketcher.Constraint("Coincident", 1, 2, 2, 1))
sketch10.addConstraint(Sketcher.Constraint("Coincident", 2, 2, 3, 1))
sketch10.addConstraint(Sketcher.Constraint("Coincident", 3, 2, 0, 1))
sketch10.addConstraint(Sketcher.Constraint("Perpendicular", 0, 1))
sketch10.addConstraint(Sketcher.Constraint("Perpendicular", 1, 2))
sketch10.addConstraint(Sketcher.Constraint("Perpendicular", 2, 3))
sketch10.addConstraint(Sketcher.Constraint("Angle", 0, Q("-100 deg")))
sketch10.addConstraint(Sketcher.Constraint("Distance", 0, Q("7 mm")))
sketch10.addConstraint(Sketcher.Constraint("Distance", 1, Q("3.6 mm")))
sketch10.addConstraint(Sketcher.Constraint("DistanceY", 0, 2, -1, 1, Q("53.611628 mm")))
sketch10.addConstraint(Sketcher.Constraint("DistanceX", -1, 1, 0, 2, Q("57.519096 mm")))
sketch10.setExpression("Constraints[8]", "Params.sketch10_length")
sketch10.setExpression("Constraints[9]", "Params.sketch10_length2")
pocket5 = doc.addObject("PartDesign::Pocket", "Pocket004")
body.addObject(pocket5)
pocket5.Profile = sketch10
pocket5.setExpression("Length", "Params.pocket5_length")
pocket5.Reversed = True

# Sketch on YZ plane
sketch11 = doc.addObject("Sketcher::SketchObject", "Sketch010")
body.addObject(sketch11)
sketch11.AttachmentSupport = (doc.YZ_Plane, [""])
sketch11.MapMode = "FlatFace"
sketch11.addGeometry(Part.LineSegment(V(56.2, -40.2, 0), V(52.9, -58.9, 0)), False)
sketch11.addGeometry(Part.LineSegment(V(52.9, -58.9, 0), V(51.3, -58.6, 0)), False)
sketch11.addGeometry(Part.LineSegment(V(51.3, -58.6, 0), V(54.6, -39.9, 0)), False)
sketch11.addGeometry(Part.LineSegment(V(54.6, -39.9, 0), V(56.2, -40.2, 0)), False)
sketch11.addConstraint(Sketcher.Constraint("Coincident", 0, 2, 1, 1))
sketch11.addConstraint(Sketcher.Constraint("Coincident", 1, 2, 2, 1))
sketch11.addConstraint(Sketcher.Constraint("Coincident", 2, 2, 3, 1))
sketch11.addConstraint(Sketcher.Constraint("Coincident", 3, 2, 0, 1))
sketch11.addConstraint(Sketcher.Constraint("Perpendicular", 0, 1))
sketch11.addConstraint(Sketcher.Constraint("Perpendicular", 1, 2))
sketch11.addConstraint(Sketcher.Constraint("Perpendicular", 2, 3))
sketch11.addConstraint(Sketcher.Constraint("Angle", 0, Q("-100 deg")))
sketch11.addConstraint(Sketcher.Constraint("Distance", 1, Q("1.7 mm")))
sketch11.addConstraint(Sketcher.Constraint("Distance", 0, Q("19.05 mm")))
sketch11.addConstraint(Sketcher.Constraint("DistanceY", 0, 2, -1, 1, Q("58.919962 mm")))
sketch11.addConstraint(Sketcher.Constraint("DistanceX", -1, 1, 0, 2, Q("52.927558 mm")))
sketch11.setExpression("Constraints[8]", "Params.sketch11_length")
sketch11.setExpression("Constraints[9]", "Params.sketch11_length2")
pocket6 = doc.addObject("PartDesign::Pocket", "Pocket005")
body.addObject(pocket6)
pocket6.Profile = sketch11
pocket6.setExpression("Length", "Params.pocket6_length")
pocket6.Reversed = True

# Sketch on YZ plane
sketch12 = doc.addObject("Sketcher::SketchObject", "Sketch011")
body.addObject(sketch12)
sketch12.AttachmentSupport = (doc.YZ_Plane, [""])
sketch12.MapMode = "FlatFace"
sketch12.addGeometry(Part.LineSegment(V(54, -43, 0), V(52, -55, 0)), False)
sketch12.addGeometry(Part.LineSegment(V(52, -55, 0), V(16, -49, 0)), False)
sketch12.addGeometry(Part.LineSegment(V(16, -49, 0), V(18, -37, 0)), False)
sketch12.addGeometry(Part.LineSegment(V(18, -37, 0), V(54, -43, 0)), False)
sketch12.addConstraint(Sketcher.Constraint("Coincident", 0, 2, 1, 1))
sketch12.addConstraint(Sketcher.Constraint("Coincident", 1, 2, 2, 1))
sketch12.addConstraint(Sketcher.Constraint("Coincident", 2, 2, 3, 1))
sketch12.addConstraint(Sketcher.Constraint("Coincident", 3, 2, 0, 1))
sketch12.addConstraint(Sketcher.Constraint("Perpendicular", 0, 1))
sketch12.addConstraint(Sketcher.Constraint("Perpendicular", 1, 2))
sketch12.addConstraint(Sketcher.Constraint("Perpendicular", 2, 3))
sketch12.addConstraint(Sketcher.Constraint("Angle", 0, Q("-100 deg")))
sketch12.addConstraint(Sketcher.Constraint("Distance", 0, Q("12 mm")))
sketch12.addConstraint(Sketcher.Constraint("Distance", 1, Q("36.05 mm")))
sketch12.addConstraint(Sketcher.Constraint("DistanceY", 3, 2, -1, 1, Q("43.335619 mm")))
sketch12.addConstraint(Sketcher.Constraint("DistanceX", -1, 1, 0, 2, Q("51.865494 mm")))
sketch12.setExpression("Constraints[8]", "Params.sketch12_length")
sketch12.setExpression("Constraints[9]", "Params.sketch12_length2")
pocket7 = doc.addObject("PartDesign::Pocket", "Pocket006")
body.addObject(pocket7)
pocket7.Profile = sketch12
pocket7.setExpression("Length", "Params.pocket7_length")
pocket7.Reversed = True

doc.recompute()
